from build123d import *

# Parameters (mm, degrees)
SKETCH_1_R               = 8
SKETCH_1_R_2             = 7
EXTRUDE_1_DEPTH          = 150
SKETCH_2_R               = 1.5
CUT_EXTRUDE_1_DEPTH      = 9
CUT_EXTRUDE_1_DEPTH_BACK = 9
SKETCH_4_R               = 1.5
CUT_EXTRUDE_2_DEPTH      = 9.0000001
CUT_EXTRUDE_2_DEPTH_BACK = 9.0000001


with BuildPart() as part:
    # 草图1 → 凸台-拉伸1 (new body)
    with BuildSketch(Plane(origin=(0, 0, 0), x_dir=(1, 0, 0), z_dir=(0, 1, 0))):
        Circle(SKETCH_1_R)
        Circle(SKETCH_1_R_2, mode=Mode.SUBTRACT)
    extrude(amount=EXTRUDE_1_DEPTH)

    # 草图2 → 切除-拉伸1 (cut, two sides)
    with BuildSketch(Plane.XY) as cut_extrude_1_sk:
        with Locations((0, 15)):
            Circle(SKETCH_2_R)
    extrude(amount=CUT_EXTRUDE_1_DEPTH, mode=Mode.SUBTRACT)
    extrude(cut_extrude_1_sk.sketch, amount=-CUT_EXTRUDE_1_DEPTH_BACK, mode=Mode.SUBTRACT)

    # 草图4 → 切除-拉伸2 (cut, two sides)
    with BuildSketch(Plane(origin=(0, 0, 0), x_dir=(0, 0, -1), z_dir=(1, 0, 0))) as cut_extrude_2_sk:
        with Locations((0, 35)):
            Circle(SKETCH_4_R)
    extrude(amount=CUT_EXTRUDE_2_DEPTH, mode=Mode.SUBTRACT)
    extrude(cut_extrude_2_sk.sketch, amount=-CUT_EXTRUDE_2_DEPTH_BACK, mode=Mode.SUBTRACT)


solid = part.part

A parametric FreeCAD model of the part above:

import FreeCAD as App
import Part
import Sketcher
Q = App.Units.Quantity

doc = App.newDocument("Part")
params = doc.addObject("Spreadsheet::Sheet", "Params")
for row, (alias, value) in enumerate([
    ("sketch1_diameter", "16 mm"),
    ("sketch1_diameter2", "14 mm"),
    ("pad1_length", "150 mm"),
    ("sketch2_diameter", "3 mm"),
    ("sketch3_diameter", "3 mm"),
], start=1):
    params.set(f"A{row}", alias)
    params.set(f"B{row}", "=" + value)
    params.setAlias(f"B{row}", alias)

body = doc.addObject("PartDesign::Body", "Body")

# Sketch on XZ plane
sketch1 = doc.addObject("Sketcher::SketchObject", "Sketch")
body.addObject(sketch1)
sketch1.AttachmentSupport = (doc.XZ_Plane, [""])
sketch1.MapMode = "FlatFace"
sketch1.addGeometry([
    Part.Circle(App.Vector(0, 0, 0), App.Vector(0, 0, 1), 8),
    Part.Circle(App.Vector(0, 0, 0), App.Vector(0, 0, 1), 7),
], False)
sketch1.addConstraint([
    Sketcher.Constraint("Coincident", 0, 3, -1, 1),
    Sketcher.Constraint("Coincident", 1, 3, -1, 1),
    Sketcher.Constraint("Diameter", 0, Q("16 mm")),
    Sketcher.Constraint("Diameter", 1, Q("14 mm")),
])
sketch1.setExpression("Constraints[2]", "Params.sketch1_diameter")
sketch1.setExpression("Constraints[3]", "Params.sketch1_diameter2")
pad1 = doc.addObject("PartDesign::Pad", "Pad")
body.addObject(pad1)
pad1.Profile = sketch1
pad1.setExpression("Length", "Params.pad1_length")
pad1.Reversed = True

# Sketch on XY plane
sketch2 = doc.addObject("Sketcher::SketchObject", "Sketch001")
body.addObject(sketch2)
sketch2.AttachmentSupport = (doc.XY_Plane, [""])
sketch2.MapMode = "FlatFace"
sketch2.addGeometry(Part.Circle(App.Vector(0, 15, 0), App.Vector(0, 0, 1), 1.5), False)
sketch2.addConstraint([
    Sketcher.Constraint("PointOnObject", 0, 3, -2),
    Sketcher.Constraint("Diameter", 0, Q("3 mm")),
    Sketcher.Constraint("DistanceY", -1, 1, 0, 3, Q("15 mm")),
])
sketch2.setExpression("Constraints[1]", "Params.sketch2_diameter")
pocket1 = doc.addObject("PartDesign::Pocket", "Pocket")
body.addObject(pocket1)
pocket1.Profile = sketch2
pocket1.Type = "ThroughAll"
pocket1.Midplane = True

# Sketch on YZ plane
sketch3 = doc.addObject("Sketcher::SketchObject", "Sketch002")
body.addObject(sketch3)
sketch3.AttachmentSupport = (doc.YZ_Plane, [""])
sketch3.MapMode = "FlatFace"
sketch3.addGeometry(Part.Circle(App.Vector(35, 0, 0), App.Vector(0, 0, 1), 1.5), False)
sketch3.addConstraint([
    Sketcher.Constraint("PointOnObject", 0, 3, -1),
    Sketcher.Constraint("Diameter", 0, Q("3 mm")),
    Sketcher.Constraint("DistanceX", -1, 1, 0, 3, Q("35 mm")),
])
sketch3.setExpression("Constraints[1]", "Params.sketch3_diameter")
pocket2 = doc.addObject("PartDesign::Pocket", "Pocket001")
body.addObject(pocket2)
pocket2.Profile = sketch3
pocket2.Type = "ThroughAll"
pocket2.Midplane = True

doc.recompute()
